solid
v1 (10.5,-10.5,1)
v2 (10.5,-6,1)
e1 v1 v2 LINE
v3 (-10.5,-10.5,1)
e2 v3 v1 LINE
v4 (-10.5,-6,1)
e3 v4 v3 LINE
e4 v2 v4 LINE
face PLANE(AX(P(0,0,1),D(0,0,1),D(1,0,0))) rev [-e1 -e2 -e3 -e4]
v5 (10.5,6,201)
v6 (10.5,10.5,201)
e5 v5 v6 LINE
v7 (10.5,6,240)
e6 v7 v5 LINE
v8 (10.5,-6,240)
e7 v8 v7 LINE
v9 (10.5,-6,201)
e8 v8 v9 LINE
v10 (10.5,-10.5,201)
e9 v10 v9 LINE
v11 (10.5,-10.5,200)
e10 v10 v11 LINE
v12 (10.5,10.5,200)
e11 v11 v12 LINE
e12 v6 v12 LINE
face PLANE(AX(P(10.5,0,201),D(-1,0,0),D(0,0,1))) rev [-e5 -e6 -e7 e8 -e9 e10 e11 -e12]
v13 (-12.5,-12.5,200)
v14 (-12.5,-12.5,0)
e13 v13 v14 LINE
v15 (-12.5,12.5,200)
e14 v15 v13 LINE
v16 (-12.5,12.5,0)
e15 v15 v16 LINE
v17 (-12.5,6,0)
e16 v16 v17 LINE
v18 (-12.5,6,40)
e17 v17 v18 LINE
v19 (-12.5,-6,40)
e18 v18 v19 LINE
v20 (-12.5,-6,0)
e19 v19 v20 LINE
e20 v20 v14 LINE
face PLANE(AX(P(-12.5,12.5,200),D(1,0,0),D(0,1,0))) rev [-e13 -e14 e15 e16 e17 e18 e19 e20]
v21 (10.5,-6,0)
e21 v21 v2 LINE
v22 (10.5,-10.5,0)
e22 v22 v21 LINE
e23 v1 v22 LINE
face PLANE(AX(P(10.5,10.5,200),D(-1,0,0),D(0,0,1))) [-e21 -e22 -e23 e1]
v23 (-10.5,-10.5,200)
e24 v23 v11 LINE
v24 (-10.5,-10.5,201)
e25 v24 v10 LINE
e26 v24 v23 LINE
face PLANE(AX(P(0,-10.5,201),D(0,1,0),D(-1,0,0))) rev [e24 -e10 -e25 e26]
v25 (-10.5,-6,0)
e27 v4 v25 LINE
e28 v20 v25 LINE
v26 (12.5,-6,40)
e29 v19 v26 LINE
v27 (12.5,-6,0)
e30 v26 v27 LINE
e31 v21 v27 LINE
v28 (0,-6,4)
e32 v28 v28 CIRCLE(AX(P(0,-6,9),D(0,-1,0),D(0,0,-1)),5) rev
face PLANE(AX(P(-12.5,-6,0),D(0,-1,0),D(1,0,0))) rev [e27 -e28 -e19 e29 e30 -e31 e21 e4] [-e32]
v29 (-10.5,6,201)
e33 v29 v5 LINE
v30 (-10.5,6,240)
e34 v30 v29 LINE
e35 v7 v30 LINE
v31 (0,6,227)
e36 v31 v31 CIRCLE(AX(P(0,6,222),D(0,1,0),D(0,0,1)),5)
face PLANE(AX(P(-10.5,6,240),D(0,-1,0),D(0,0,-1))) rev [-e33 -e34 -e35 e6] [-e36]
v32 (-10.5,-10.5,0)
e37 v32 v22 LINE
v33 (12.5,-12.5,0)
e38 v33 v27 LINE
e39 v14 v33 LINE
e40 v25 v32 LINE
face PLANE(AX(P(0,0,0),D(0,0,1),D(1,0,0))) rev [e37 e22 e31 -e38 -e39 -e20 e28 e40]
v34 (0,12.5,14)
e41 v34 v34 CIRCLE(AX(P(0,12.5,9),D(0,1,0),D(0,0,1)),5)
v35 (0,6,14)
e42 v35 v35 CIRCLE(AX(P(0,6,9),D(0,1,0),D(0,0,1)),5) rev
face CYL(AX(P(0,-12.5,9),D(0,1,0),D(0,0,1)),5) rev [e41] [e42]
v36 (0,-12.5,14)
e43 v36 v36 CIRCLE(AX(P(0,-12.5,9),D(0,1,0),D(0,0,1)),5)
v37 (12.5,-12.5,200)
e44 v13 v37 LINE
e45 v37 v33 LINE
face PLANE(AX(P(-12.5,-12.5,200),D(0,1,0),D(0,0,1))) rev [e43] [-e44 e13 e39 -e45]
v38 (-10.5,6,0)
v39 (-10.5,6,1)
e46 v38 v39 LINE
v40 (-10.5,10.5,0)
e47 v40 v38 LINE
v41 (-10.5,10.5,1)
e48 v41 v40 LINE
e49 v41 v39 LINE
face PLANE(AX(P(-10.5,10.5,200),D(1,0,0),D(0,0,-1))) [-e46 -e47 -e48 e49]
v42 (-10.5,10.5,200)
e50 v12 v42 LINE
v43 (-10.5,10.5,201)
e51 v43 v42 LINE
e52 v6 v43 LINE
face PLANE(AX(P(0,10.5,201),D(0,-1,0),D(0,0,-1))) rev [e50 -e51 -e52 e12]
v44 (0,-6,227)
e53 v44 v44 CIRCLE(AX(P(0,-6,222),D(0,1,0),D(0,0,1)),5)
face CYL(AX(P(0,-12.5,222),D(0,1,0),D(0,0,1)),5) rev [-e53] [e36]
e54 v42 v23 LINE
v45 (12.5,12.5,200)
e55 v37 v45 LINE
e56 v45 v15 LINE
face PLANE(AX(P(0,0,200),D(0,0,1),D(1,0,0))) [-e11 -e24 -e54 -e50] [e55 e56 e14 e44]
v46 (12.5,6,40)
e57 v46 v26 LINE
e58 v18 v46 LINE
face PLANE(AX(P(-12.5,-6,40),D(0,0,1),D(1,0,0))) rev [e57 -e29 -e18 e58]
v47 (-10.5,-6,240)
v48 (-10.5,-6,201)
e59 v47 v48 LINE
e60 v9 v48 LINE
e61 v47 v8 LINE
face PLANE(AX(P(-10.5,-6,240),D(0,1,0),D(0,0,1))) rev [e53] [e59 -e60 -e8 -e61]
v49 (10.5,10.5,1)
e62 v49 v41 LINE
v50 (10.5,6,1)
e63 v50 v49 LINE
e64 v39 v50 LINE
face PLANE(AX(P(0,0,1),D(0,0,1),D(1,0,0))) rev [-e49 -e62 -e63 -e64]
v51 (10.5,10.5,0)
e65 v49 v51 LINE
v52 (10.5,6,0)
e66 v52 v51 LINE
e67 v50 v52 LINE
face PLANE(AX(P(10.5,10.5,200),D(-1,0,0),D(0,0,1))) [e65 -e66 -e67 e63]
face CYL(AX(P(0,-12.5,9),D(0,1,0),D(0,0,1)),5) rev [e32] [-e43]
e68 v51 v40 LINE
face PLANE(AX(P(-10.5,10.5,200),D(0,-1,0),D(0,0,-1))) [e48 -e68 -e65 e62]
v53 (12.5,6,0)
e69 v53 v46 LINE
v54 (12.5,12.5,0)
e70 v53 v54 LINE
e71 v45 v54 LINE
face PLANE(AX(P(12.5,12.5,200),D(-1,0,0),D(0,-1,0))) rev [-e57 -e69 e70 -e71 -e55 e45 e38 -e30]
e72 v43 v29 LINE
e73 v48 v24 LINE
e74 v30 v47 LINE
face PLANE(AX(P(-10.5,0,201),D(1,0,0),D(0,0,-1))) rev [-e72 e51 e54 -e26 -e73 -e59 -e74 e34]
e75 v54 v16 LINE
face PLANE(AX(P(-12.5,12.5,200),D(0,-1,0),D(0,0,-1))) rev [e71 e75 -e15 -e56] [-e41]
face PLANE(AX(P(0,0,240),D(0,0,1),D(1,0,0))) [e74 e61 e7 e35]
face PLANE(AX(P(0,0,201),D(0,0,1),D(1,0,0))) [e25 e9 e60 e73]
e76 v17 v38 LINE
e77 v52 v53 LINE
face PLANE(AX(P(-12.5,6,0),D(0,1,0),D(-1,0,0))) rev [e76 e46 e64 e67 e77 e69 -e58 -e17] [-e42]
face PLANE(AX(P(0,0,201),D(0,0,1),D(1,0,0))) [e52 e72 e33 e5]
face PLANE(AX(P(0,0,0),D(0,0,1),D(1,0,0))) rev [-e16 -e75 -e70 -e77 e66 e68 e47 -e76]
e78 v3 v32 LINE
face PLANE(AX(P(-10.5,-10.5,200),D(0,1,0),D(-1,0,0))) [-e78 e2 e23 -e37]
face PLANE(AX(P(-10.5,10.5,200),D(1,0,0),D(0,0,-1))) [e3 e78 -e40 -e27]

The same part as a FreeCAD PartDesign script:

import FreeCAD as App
import Part
import Sketcher

doc = App.newDocument("Part")
params = doc.addObject("Spreadsheet::Sheet", "Params")
for row, (alias, value) in enumerate([
    ("sketch1_width", "25 mm"),
    ("sketch1_width2", "21 mm"),
    ("pad1_length", "200 mm"),
    ("sketch2_width", "12 mm"),
    ("sketch2_height", "40 mm"),
    ("sketch3_diameter", "10 mm"),
    ("sketch4_width", "21 mm"),
    ("pad2_length", "1 mm"),
    ("pad2_length2", "199 mm"),
    ("sketch5_diameter", "10 mm"),
    ("pocket3_length", "239 mm"),
    ("sketch6_width", "21 mm"),
    ("sketch6_height", "12 mm"),
    ("pocket4_length", "39 mm"),
    ("sketch7_width", "21 mm"),
    ("sketch7_height", "12 mm"),
    ("pad3_length", "40 mm"),
    ("sketch8_diameter", "10 mm"),
], start=1):
    params.set(f"A{row}", alias)
    params.set(f"B{row}", "=" + value)
    params.setAlias(f"B{row}", alias)

body = doc.addObject("PartDesign::Body", "Body")

# Sketch on XY plane
sketch1 = doc.addObject("Sketcher::SketchObject", "Sketch")
body.addObject(sketch1)
sketch1.AttachmentSupport = (doc.XY_Plane, [""])
sketch1.MapMode = "FlatFace"
sketch1.addGeometry([
    Part.LineSegment(App.Vector(-12, 12, 0), App.Vector(-12, -12, 0)),  # 0
    Part.LineSegment(App.Vector(-12, -12, 0), App.Vector(12, -12, 0)),  # 1
    Part.LineSegment(App.Vector(12, -12, 0), App.Vector(12, 12, 0)),  # 2
    Part.LineSegment(App.Vector(12, 12, 0), App.Vector(-12, 12, 0)),  # 3
    Part.LineSegment(App.Vector(10, -10, 0), App.Vector(-10, -10, 0)),  # 4
    Part.LineSegment(App.Vector(-10, -10, 0), App.Vector(-10, 10, 0)),  # 5
    Part.LineSegment(App.Vector(-10, 10, 0), App.Vector(10, 10, 0)),  # 6
    Part.LineSegment(App.Vector(10, 10, 0), App.Vector(10, -10, 0)),  # 7
], False)
sketch1.addConstraint([
    Sketcher.Constraint("Coincident", 0, 2, 1, 1),
    Sketcher.Constraint("Coincident", 1, 2, 2, 1),
    Sketcher.Constraint("Coincident", 2, 2, 3, 1),
    Sketcher.Constraint("Coincident", 3, 2, 0, 1),
    Sketcher.Constraint("Coincident", 4, 2, 5, 1),
    Sketcher.Constraint("Coincident", 5, 2, 6, 1),
    Sketcher.Constraint("Coincident", 6, 2, 7, 1),
    Sketcher.Constraint("Coincident", 7, 2, 4, 1),
    Sketcher.Constraint("Vertical", 0),
    Sketcher.Constraint("Horizontal", 1),
    Sketcher.Constraint("Vertical", 2),
    Sketcher.Constraint("Horizontal", 3),
    Sketcher.Constraint("Horizontal", 4),
    Sketcher.Constraint("Vertical", 5),
    Sketcher.Constraint("Horizontal", 6),
    Sketcher.Constraint("Vertical", 7),
    Sketcher.Constraint("Symmetric", 0, 2, 2, 2, -1, 1),
    Sketcher.Constraint("Symmetric", 4, 2, 6, 2, -1, 1),
    Sketcher.Constraint("Equal", 3, 0),
    Sketcher.Constraint("Equal", 6, 5),
    Sketcher.Constraint("DistanceX", 1, 1, 1, 2, 25.0),
    Sketcher.Constraint("DistanceX", 4, 2, 4, 1, 21.0),
])
sketch1.setExpression("Constraints[20]", "Params.sketch1_width")
sketch1.setExpression("Constraints[21]", "Params.sketch1_width2")
pad1 = doc.addObject("PartDesign::Pad", "Pad")
body.addObject(pad1)
pad1.Profile = sketch1
pad1.setExpression("Length", "Params.pad1_length")

# Sketch on YZ plane
sketch2 = doc.addObject("Sketcher::SketchObject", "Sketch001")
body.addObject(sketch2)
sketch2.AttachmentSupport = (doc.YZ_Plane, [""])
sketch2.MapMode = "FlatFace"
sketch2.AttachmentOffset = App.Placement(App.Vector(0, 0, 12.5), App.Rotation())
sketch2.addGeometry([
    Part.LineSegment(App.Vector(6, 40, 0), App.Vector(-6, 40, 0)),
    Part.LineSegment(App.Vector(-6, 40, 0), App.Vector(-6, 0, 0)),
    Part.LineSegment(App.Vector(-6, 0, 0), App.Vector(6, 0, 0)),
    Part.LineSegment(App.Vector(6, 0, 0), App.Vector(6, 40, 0)),
], False)
sketch2.addConstraint([
    Sketcher.Constraint("Coincident", 0, 2, 1, 1),
    Sketcher.Constraint("Coincident", 1, 2, 2, 1),
    Sketcher.Constraint("Coincident", 2, 2, 3, 1),
    Sketcher.Constraint("Coincident", 3, 2, 0, 1),
    Sketcher.Constraint("Horizontal", 0),
    Sketcher.Constraint("Vertical", 1),
    Sketcher.Constraint("Horizontal", 2),
    Sketcher.Constraint("Vertical", 3),
    Sketcher.Constraint("Symmetric", 1, 2, 2, 2, -1, 1),
    Sketcher.Constraint("DistanceX", 0, 2, 0, 1, 12.0),
    Sketcher.Constraint("DistanceY", 1, 2, 1, 1, 40.0),
])
sketch2.setExpression("Constraints[9]", "Params.sketch2_width")
sketch2.setExpression("Constraints[10]", "Params.sketch2_height")
pocket1 = doc.addObject("PartDesign::Pocket", "Pocket")
body.addObject(pocket1)
pocket1.Profile = sketch2
pocket1.Type = "ThroughAll"

# Sketch on XZ plane
sketch3 = doc.addObject("Sketcher::SketchObject", "Sketch002")
body.addObject(sketch3)
sketch3.AttachmentSupport = (doc.XZ_Plane, [""])
sketch3.MapMode = "FlatFace"
sketch3.AttachmentOffset = App.Placement(App.Vector(0, 0, -12.5), App.Rotation())
sketch3.addGeometry(Part.Circle(App.Vector(0, 9, 0), App.Vector(0, 0, 1), 5), False)
sketch3.addConstraint([
    Sketcher.Constraint("PointOnObject", 0, 3, -2),
    Sketcher.Constraint("Diameter", 0, 10.0),
    Sketcher.Constraint("DistanceY", -1, 1, 0, 3, 9.0),
])
sketch3.setExpression("Constraints[1]", "Params.sketch3_diameter")
pocket2 = doc.addObject("PartDesign::Pocket", "Pocket001")
body.addObject(pocket2)
pocket2.Profile = sketch3
pocket2.Type = "ThroughAll"
pocket2.Reversed = True

# Sketch on XY plane
sketch4 = doc.addObject("Sketcher::SketchObject", "Sketch003")
body.addObject(sketch4)
sketch4.AttachmentSupport = (doc.XY_Plane, [""])
sketch4.MapMode = "FlatFace"
sketch4.AttachmentOffset = App.Placement(App.Vector(0, 0, 200), App.Rotation())
sketch4.addGeometry([
    Part.LineSegment(App.Vector(-10, 10, 0), App.Vector(-10, -10, 0)),
    Part.LineSegment(App.Vector(-10, -10, 0), App.Vector(10, -10, 0)),
    Part.LineSegment(App.Vector(10, -10, 0), App.Vector(10, 10, 0)),
    Part.LineSegment(App.Vector(10, 10, 0), App.Vector(-10, 10, 0)),
], False)
sketch4.addConstraint([
    Sketcher.Constraint("Coincident", 0, 2, 1, 1),
    Sketcher.Constraint("Coincident", 1, 2, 2, 1),
    Sketcher.Constraint("Coincident", 2, 2, 3, 1),
    Sketcher.Constraint("Coincident", 3, 2, 0, 1),
    Sketcher.Constraint("Vertical", 0),
    Sketcher.Constraint("Horizontal", 1),
    Sketcher.Constraint("Vertical", 2),
    Sketcher.Constraint("Horizontal", 3),
    Sketcher.Constraint("Symmetric", 0, 2, 2, 2, -1, 1),
    Sketcher.Constraint("Equal", 3, 0),
    Sketcher.Constraint("DistanceX", 1, 1, 1, 2, 21.0),
])
sketch4.setExpression("Constraints[10]", "Params.sketch4_width")
pad2 = doc.addObject("PartDesign::Pad", "Pad001")
body.addObject(pad2)
pad2.Profile = sketch4
pad2.Type = "TwoLengths"
pad2.setExpression("Length", "Params.pad2_length")
pad2.setExpression("Length2", "Params.pad2_length2")

# Sketch on XZ plane
sketch5 = doc.addObject("Sketcher::SketchObject", "Sketch004")
body.addObject(sketch5)
sketch5.AttachmentSupport = (doc.XZ_Plane, [""])
sketch5.MapMode = "FlatFace"
sketch5.AttachmentOffset = App.Placement(App.Vector(0, 0, -12.5), App.Rotation())
sketch5.addGeometry(Part.Circle(App.Vector(0, 9, 0), App.Vector(0, 0, 1), 5), False)
sketch5.addConstraint([
    Sketcher.Constraint("PointOnObject", 0, 3, -2),
    Sketcher.Constraint("Diameter", 0, 10.0),
    Sketcher.Constraint("DistanceY", -1, 1, 0, 3, 9.0),
])
sketch5.setExpression("Constraints[1]", "Params.sketch5_diameter")
pocket3 = doc.addObject("PartDesign::Pocket", "Pocket002")
body.addObject(pocket3)
pocket3.Profile = sketch5
pocket3.setExpression("Length", "Params.pocket3_length")
pocket3.Reversed = True

# Sketch on XY plane
sketch6 = doc.addObject("Sketcher::SketchObject", "Sketch005")
body.addObject(sketch6)
sketch6.AttachmentSupport = (doc.XY_Plane, [""])
sketch6.MapMode = "FlatFace"
sketch6.AttachmentOffset = App.Placement(App.Vector(0, 0, 1), App.Rotation())
sketch6.addGeometry([
    Part.LineSegment(App.Vector(10, 6, 0), App.Vector(10, -6, 0)),
    Part.LineSegment(App.Vector(10, -6, 0), App.Vector(-10, -6, 0)),
    Part.LineSegment(App.Vector(-10, -6, 0), App.Vector(-10, 6, 0)),
    Part.LineSegment(App.Vector(-10, 6, 0), App.Vector(10, 6, 0)),
], False)
sketch6.addConstraint([
    Sketcher.Constraint("Coincident", 0, 2, 1, 1),
    Sketcher.Constraint("Coincident", 1, 2, 2, 1),
    Sketcher.Constraint("Coincident", 2, 2, 3, 1),
    Sketcher.Constraint("Coincident", 3, 2, 0, 1),
    Sketcher.Constraint("Vertical", 0),
    Sketcher.Constraint("Horizontal", 1),
    Sketcher.Constraint("Vertical", 2),
    Sketcher.Constraint("Horizontal", 3),
    Sketcher.Constraint("Symmetric", 0, 2, 2, 2, -1, 1),
    Sketcher.Constraint("DistanceX", 1, 2, 1, 1, 21.0),
    Sketcher.Constraint("DistanceY", 0, 2, 0, 1, 12.0),
])
sketch6.setExpression("Constraints[9]", "Params.sketch6_width")
sketch6.setExpression("Constraints[10]", "Params.sketch6_height")
pocket4 = doc.addObject("PartDesign::Pocket", "Pocket003")
body.addObject(pocket4)
pocket4.Profile = sketch6
pocket4.setExpression("Length", "Params.pocket4_length")
pocket4.Reversed = True

# Sketch on XY plane
sketch7 = doc.addObject("Sketcher::SketchObject", "Sketch006")
body.addObject(sketch7)
sketch7.AttachmentSupport = (doc.XY_Plane, [""])
sketch7.MapMode = "FlatFace"
sketch7.AttachmentOffset = App.Placement(App.Vector(0, 0, 200), App.Rotation())
sketch7.addGeometry([
    Part.LineSegment(App.Vector(-10, 6, 0), App.Vector(-10, -6, 0)),
    Part.LineSegment(App.Vector(-10, -6, 0), App.Vector(10, -6, 0)),
    Part.LineSegment(App.Vector(10, -6, 0), App.Vector(10, 6, 0)),
    Part.LineSegment(App.Vector(10, 6, 0), App.Vector(-10, 6, 0)),
], False)
sketch7.addConstraint([
    Sketcher.Constraint("Coincident", 0, 2, 1, 1),
    Sketcher.Constraint("Coincident", 1, 2, 2, 1),
    Sketcher.Constraint("Coincident", 2, 2, 3, 1),
    Sketcher.Constraint("Coincident", 3, 2, 0, 1),
    Sketcher.Constraint("Vertical", 0),
    Sketcher.Constraint("Horizontal", 1),
    Sketcher.Constraint("Vertical", 2),
    Sketcher.Constraint("Horizontal", 3),
    Sketcher.Constraint("Symmetric", 0, 2, 2, 2, -1, 1),
    Sketcher.Constraint("DistanceX", 1, 1, 1, 2, 21.0),
    Sketcher.Constraint("DistanceY", 0, 2, 0, 1, 12.0),
])
sketch7.setExpression("Constraints[9]", "Params.sketch7_width")
sketch7.setExpression("Constraints[10]", "Params.sketch7_height")
pad3 = doc.addObject("PartDesign::Pad", "Pad002")
body.addObject(pad3)
pad3.Profile = sketch7
pad3.setExpression("Length", "Params.pad3_length")

# Sketch on XZ plane
sketch8 = doc.addObject("Sketcher::SketchObject", "Sketch007")
body.addObject(sketch8)
sketch8.AttachmentSupport = (doc.XZ_Plane, [""])
sketch8.MapMode = "FlatFace"
sketch8.AttachmentOffset = App.Placement(App.Vector(0, 0, -6), App.Rotation())
sketch8.addGeometry(Part.Circle(App.Vector(0, 222, 0), App.Vector(0, 0, 1), 5), False)
sketch8.addConstraint([
    Sketcher.Constraint("PointOnObject", 0, 3, -2),
    Sketcher.Constraint("Diameter", 0, 10.0),
    Sketcher.Constraint("DistanceY", -1, 1, 0, 3, 222.0),
])
sketch8.setExpression("Constraints[1]", "Params.sketch8_diameter")
pocket5 = doc.addObject("PartDesign::Pocket", "Pocket004")
body.addObject(pocket5)
pocket5.Profile = sketch8
pocket5.Type = "ThroughAll"
pocket5.Reversed = True

doc.recompute()
